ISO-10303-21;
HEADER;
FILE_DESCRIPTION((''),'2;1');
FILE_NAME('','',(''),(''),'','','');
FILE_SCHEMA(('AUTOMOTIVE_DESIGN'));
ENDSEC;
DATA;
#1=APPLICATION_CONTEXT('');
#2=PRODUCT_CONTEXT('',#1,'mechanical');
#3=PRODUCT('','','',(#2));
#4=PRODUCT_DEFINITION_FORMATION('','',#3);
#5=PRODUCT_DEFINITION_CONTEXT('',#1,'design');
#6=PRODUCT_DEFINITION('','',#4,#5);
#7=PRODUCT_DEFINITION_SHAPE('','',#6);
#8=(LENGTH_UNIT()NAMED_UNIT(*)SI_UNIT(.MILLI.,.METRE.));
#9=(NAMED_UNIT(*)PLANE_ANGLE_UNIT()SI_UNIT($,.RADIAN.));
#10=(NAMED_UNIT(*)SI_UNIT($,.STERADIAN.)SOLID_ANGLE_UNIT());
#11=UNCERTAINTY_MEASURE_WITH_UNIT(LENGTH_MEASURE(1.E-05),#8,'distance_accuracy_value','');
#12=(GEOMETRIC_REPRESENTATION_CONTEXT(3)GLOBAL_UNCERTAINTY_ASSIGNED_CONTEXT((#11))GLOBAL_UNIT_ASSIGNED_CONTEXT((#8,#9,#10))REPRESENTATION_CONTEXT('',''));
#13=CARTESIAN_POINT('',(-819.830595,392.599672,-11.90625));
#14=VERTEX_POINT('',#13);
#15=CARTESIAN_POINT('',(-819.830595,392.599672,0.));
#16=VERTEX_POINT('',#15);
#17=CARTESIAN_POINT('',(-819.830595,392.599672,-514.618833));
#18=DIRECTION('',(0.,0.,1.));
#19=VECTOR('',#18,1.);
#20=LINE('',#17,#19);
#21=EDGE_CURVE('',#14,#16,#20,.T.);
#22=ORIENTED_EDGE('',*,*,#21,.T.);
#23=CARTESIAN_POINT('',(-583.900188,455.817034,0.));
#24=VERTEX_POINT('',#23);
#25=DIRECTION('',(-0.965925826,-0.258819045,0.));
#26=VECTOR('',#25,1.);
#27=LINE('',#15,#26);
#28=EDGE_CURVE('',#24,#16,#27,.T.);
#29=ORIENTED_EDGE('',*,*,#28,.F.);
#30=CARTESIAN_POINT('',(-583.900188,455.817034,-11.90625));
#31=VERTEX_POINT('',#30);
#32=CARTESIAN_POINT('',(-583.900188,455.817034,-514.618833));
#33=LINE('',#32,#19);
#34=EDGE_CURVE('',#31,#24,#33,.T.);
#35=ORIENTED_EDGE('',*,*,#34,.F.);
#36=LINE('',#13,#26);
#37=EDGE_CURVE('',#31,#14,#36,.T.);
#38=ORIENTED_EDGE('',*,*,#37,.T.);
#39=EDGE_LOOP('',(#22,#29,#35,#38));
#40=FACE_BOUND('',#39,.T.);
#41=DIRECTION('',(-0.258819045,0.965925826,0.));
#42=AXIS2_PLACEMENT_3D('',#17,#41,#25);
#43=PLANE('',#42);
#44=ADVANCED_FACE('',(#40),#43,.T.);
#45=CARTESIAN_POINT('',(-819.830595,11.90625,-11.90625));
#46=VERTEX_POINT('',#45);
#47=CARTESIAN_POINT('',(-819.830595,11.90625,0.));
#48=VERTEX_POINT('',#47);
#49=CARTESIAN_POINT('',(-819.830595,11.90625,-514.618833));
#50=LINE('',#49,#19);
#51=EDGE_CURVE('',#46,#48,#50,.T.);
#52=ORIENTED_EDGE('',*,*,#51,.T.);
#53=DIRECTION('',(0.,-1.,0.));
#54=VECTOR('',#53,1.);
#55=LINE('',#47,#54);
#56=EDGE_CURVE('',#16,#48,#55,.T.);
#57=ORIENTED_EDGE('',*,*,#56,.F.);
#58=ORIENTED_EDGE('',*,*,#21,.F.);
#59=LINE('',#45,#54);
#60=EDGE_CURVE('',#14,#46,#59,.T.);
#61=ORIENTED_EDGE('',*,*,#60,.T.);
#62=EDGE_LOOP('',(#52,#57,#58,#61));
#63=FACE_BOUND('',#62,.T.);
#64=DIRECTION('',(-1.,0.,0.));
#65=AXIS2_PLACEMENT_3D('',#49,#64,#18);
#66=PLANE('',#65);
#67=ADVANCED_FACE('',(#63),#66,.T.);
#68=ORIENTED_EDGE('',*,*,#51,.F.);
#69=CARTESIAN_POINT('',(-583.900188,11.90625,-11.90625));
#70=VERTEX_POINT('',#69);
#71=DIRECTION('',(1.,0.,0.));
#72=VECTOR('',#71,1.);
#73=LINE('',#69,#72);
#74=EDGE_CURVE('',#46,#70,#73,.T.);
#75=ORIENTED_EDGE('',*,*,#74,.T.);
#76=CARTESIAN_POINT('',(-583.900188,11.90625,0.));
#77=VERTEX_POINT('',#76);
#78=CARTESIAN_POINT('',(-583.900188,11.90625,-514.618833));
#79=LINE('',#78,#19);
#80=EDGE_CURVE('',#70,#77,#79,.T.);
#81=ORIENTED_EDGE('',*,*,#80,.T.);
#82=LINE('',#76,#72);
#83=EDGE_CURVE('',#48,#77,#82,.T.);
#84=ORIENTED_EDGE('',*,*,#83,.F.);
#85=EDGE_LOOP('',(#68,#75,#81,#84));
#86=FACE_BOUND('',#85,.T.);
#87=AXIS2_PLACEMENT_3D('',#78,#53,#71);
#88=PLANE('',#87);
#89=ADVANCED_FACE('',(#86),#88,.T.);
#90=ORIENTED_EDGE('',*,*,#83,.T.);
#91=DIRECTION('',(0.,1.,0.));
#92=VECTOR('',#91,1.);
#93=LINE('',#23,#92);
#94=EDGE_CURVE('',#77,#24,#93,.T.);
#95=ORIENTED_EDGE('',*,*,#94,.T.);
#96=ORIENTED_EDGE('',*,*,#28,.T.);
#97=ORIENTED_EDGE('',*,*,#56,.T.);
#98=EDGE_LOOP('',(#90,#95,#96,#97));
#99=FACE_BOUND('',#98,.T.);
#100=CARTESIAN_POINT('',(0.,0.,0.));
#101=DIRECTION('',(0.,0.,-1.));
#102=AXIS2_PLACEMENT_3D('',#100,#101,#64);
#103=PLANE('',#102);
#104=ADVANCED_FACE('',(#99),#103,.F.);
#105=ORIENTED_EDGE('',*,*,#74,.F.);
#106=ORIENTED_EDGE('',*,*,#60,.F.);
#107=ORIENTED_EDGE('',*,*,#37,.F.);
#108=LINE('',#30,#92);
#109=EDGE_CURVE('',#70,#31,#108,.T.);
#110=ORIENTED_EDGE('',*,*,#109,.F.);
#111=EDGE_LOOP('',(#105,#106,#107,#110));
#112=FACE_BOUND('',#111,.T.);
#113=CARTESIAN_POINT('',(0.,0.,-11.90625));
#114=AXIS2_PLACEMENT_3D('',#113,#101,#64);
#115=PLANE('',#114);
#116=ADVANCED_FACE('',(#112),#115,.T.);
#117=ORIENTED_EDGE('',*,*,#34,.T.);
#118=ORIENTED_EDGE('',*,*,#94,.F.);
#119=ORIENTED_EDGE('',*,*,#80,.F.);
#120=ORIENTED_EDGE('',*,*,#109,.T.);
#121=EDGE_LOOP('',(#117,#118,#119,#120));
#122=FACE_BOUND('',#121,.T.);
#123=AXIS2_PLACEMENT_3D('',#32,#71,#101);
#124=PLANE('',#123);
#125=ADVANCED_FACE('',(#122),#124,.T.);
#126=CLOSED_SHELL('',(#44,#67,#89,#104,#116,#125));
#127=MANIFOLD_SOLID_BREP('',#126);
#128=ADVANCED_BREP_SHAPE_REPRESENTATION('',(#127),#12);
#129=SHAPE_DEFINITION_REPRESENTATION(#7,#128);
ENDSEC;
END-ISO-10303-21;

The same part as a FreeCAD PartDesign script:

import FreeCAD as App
import Part
import Sketcher

V = App.Vector
Q = App.Units.Quantity

doc = App.newDocument("Part")
body = doc.addObject("PartDesign::Body", "Body")

# Sketch on XY plane
sketch1 = body.newObject("Sketcher::SketchObject", "Sketch")
sketch1.AttachmentSupport = (doc.getObject("XY_Plane"), [""])
sketch1.MapMode = "FlatFace"
sketch1.addGeometry([
    Part.LineSegment(V(-819.830595, 392.599672, 0), V(-819.830595, 11.90625, 0)),
    Part.LineSegment(V(-819.830595, 11.90625, 0), V(-583.900188, 11.90625, 0)),
    Part.LineSegment(V(-583.900188, 11.90625, 0), V(-583.900188, 455.817034, 0)),
    Part.LineSegment(V(-583.900188, 455.817034, 0), V(-819.830595, 392.599672, 0)),
], False)
sketch1.addConstraint([
    Sketcher.Constraint("Coincident", 0, 2, 1, 1),
    Sketcher.Constraint("Coincident", 1, 2, 2, 1),
    Sketcher.Constraint("Coincident", 2, 2, 3, 1),
    Sketcher.Constraint("Coincident", 3, 2, 0, 1),
    Sketcher.Constraint("Vertical", 0),
    Sketcher.Constraint("Horizontal", 1),
    Sketcher.Constraint("Vertical", 2),
    Sketcher.Constraint("Angle", 3, Q("-165 deg")),
    Sketcher.Constraint("DistanceY", -1, 1, 0, 2, Q("0.46875 in")),
    Sketcher.Constraint("Distance", 3, Q("244.25313 mm")),
    Sketcher.Constraint("DistanceY", 0, 2, 0, 1, Q("380.693422 mm")),
    Sketcher.Constraint("DistanceX", 0, 2, -1, 1, Q("819.830595 mm")),
])
pad1 = body.newObject("PartDesign::Pad", "Pad")
pad1.Profile = sketch1
pad1.Length = Q("0.46875 in")
pad1.Reversed = True

doc.recompute()
